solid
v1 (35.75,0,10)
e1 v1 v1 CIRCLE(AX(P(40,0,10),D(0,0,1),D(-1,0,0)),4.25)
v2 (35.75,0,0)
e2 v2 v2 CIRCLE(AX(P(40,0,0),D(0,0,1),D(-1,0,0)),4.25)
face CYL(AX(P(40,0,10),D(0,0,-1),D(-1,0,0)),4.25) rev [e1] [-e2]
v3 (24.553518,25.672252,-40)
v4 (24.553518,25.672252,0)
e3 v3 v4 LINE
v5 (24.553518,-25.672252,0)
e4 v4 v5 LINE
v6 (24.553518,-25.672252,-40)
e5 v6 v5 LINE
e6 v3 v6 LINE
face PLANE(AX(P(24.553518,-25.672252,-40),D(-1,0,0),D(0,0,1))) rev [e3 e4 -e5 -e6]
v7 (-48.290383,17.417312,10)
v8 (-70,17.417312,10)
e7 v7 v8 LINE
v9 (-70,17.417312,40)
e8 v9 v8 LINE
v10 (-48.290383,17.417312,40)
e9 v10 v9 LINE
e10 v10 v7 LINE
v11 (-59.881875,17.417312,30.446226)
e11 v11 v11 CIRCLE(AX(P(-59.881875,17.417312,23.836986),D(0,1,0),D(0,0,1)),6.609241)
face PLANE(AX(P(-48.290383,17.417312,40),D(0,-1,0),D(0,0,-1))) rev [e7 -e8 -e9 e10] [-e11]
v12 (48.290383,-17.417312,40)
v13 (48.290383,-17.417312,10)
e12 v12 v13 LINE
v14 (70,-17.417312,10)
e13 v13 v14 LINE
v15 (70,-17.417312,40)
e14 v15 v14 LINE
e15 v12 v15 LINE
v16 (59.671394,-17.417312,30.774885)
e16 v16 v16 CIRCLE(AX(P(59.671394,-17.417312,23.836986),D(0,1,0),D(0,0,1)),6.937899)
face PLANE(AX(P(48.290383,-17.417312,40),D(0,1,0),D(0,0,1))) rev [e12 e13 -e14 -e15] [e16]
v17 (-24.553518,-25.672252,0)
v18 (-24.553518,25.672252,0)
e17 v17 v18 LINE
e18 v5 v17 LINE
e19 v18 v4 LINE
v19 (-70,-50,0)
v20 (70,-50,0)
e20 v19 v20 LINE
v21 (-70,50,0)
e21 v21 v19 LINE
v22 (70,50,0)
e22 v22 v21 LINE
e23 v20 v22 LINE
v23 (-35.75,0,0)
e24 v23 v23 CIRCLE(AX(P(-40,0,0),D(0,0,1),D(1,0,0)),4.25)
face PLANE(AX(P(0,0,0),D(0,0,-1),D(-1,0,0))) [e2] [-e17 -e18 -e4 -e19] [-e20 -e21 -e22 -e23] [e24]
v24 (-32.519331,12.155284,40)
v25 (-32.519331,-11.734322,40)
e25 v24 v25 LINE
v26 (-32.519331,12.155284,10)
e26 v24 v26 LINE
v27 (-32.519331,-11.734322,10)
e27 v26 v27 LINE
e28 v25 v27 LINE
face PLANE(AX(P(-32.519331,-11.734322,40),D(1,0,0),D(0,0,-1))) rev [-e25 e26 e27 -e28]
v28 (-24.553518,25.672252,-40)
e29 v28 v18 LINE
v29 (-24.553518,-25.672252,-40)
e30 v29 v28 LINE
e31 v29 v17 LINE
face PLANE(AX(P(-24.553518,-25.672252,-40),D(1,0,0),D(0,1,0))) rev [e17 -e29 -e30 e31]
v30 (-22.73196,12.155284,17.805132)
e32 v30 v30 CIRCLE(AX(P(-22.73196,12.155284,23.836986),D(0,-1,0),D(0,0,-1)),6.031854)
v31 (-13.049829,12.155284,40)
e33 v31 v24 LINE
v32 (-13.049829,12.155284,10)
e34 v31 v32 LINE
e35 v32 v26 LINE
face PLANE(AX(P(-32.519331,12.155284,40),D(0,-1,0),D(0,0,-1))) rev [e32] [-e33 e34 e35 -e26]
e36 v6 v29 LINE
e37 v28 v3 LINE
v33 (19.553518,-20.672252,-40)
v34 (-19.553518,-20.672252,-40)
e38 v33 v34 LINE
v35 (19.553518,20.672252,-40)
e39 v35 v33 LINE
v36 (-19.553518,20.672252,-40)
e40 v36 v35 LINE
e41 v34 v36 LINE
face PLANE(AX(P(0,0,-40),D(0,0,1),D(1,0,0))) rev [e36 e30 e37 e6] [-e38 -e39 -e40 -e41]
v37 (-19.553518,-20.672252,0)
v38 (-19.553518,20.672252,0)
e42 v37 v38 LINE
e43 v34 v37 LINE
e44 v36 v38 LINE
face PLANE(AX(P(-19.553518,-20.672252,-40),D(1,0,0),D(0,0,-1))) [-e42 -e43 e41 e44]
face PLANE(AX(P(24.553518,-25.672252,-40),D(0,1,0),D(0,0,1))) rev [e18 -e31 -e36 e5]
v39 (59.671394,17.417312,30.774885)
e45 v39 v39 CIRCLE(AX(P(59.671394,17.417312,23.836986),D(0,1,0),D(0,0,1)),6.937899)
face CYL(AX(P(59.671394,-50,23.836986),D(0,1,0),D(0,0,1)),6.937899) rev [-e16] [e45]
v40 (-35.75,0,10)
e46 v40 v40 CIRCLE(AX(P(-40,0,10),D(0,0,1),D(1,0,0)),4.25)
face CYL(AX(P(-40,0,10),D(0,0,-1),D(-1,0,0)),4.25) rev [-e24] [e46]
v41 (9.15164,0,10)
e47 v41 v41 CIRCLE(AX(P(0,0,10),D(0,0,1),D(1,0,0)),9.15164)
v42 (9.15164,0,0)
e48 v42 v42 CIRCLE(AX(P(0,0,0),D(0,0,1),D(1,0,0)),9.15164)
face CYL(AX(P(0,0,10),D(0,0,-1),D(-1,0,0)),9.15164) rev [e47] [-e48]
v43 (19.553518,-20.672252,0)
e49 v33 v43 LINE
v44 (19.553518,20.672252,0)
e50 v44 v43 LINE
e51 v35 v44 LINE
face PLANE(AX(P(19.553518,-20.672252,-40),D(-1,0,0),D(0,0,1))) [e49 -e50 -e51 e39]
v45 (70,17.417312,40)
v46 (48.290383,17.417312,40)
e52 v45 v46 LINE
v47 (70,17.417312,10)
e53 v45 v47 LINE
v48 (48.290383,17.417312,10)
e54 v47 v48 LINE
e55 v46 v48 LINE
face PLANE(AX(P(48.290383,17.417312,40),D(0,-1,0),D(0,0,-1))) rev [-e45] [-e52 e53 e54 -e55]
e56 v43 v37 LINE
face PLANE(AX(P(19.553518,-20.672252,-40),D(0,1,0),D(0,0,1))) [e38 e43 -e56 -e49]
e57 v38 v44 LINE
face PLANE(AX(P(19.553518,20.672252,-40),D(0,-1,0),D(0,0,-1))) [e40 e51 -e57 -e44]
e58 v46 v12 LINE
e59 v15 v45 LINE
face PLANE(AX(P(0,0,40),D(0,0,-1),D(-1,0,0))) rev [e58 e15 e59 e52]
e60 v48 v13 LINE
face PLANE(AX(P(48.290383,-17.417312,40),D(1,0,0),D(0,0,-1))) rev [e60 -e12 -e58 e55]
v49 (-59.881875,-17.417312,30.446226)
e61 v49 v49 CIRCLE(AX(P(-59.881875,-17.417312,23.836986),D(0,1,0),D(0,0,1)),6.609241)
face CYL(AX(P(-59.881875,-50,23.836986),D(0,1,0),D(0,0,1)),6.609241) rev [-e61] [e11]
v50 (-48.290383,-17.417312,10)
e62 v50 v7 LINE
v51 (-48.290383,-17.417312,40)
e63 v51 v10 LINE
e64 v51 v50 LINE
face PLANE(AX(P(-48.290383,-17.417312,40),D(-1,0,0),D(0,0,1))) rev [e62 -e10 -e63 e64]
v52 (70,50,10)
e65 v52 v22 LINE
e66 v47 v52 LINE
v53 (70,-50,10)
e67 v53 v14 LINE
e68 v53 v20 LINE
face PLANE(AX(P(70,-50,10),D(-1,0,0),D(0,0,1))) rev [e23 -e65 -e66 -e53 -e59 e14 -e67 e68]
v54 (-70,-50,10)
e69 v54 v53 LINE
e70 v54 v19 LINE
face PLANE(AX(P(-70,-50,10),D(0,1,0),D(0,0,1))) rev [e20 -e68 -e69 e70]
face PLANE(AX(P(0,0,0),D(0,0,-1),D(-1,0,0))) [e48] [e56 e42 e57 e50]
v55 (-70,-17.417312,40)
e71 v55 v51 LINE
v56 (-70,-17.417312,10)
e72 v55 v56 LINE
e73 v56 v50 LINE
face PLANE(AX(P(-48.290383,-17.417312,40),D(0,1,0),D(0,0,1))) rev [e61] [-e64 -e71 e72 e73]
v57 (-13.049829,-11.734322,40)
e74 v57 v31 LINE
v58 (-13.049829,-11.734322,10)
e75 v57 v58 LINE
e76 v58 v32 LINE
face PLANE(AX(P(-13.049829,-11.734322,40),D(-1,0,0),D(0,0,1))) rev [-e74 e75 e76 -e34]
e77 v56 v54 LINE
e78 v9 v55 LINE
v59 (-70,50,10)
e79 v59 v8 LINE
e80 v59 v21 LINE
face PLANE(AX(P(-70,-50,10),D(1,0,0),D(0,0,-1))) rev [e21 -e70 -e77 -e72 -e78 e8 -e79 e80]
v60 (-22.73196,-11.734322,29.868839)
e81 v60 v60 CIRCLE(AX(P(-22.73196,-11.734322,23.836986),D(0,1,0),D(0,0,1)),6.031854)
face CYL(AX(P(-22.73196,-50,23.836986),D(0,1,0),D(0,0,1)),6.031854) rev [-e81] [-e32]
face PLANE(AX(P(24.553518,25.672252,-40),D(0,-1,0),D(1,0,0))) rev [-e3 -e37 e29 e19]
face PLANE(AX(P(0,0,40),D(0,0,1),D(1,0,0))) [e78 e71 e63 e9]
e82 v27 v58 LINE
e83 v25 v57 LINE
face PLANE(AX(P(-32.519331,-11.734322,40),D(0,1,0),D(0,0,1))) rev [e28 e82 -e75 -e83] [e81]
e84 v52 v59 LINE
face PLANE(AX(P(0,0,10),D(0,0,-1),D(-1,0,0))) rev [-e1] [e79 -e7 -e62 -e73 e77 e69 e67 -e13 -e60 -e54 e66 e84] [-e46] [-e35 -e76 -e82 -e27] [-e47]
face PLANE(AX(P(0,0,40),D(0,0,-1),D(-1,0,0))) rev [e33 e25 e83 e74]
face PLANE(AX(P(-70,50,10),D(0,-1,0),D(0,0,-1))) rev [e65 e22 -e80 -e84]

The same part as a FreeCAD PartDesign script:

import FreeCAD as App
import Part
import Sketcher
Q = App.Units.Quantity


def add_polygon(sketch, points):
    """Adds a closed chain of lines whose ends are joined by coincident constraints."""
    first, n = sketch.GeometryCount, len(points)
    for a, b in zip(points, points[1:] + points[:1]):
        sketch.addGeometry(Part.LineSegment(App.Vector(*a, 0), App.Vector(*b, 0)), False)
    for i in range(n):
        sketch.addConstraint(Sketcher.Constraint("Coincident", first + i, 2, first + (i + 1) % n, 1))

doc = App.newDocument("Part")
body = doc.addObject("PartDesign::Body", "Body")

# Sketch on XY plane
sketch1 = doc.addObject("Sketcher::SketchObject", "Sketch")
body.addObject(sketch1)
sketch1.AttachmentSupport = (doc.XY_Plane, [""])
sketch1.MapMode = "FlatFace"
add_polygon(sketch1, [(-70, 50), (-70, -50), (70, -50), (70, 50)])  # lines 0-3
sketch1.addGeometry(Part.Circle(App.Vector(-40, 0, 0), App.Vector(0, 0, 1), 4.25), False)  # 4
sketch1.addGeometry(Part.Circle(App.Vector(0, 0, 0), App.Vector(0, 0, 1), 9.15164), False)  # 5
sketch1.addGeometry(Part.Circle(App.Vector(40, 0, 0), App.Vector(0, 0, 1), 4.25), False)  # 6
sketch1.addConstraint(Sketcher.Constraint("Vertical", 0))
sketch1.addConstraint(Sketcher.Constraint("Horizontal", 1))
sketch1.addConstraint(Sketcher.Constraint("Vertical", 2))
sketch1.addConstraint(Sketcher.Constraint("Horizontal", 3))
sketch1.addConstraint(Sketcher.Constraint("Coincident", 5, 3, -1, 1))
sketch1.addConstraint(Sketcher.Constraint("Equal", 4, 6))
sketch1.addConstraint(Sketcher.Constraint("Symmetric", 4, 3, 6, 3, -1, 1))
sketch1.addConstraint(Sketcher.Constraint("Symmetric", 0, 2, 2, 2, -1, 1))
sketch1.addConstraint(Sketcher.Constraint("PointOnObject", 4, 3, -1))
sketch1.addConstraint(Sketcher.Constraint("Diameter", 4, Q("8.5 mm")))
sketch1.addConstraint(Sketcher.Constraint("DistanceX", 1, 1, 1, 2, Q("140 mm")))
sketch1.addConstraint(Sketcher.Constraint("DistanceY", 0, 2, 0, 1, Q("100 mm")))
sketch1.addConstraint(Sketcher.Constraint("DistanceX", 4, 3, -1, 1, Q("40 mm")))
sketch1.addConstraint(Sketcher.Constraint("Diameter", 5, Q("18.303279 mm")))
pad1 = doc.addObject("PartDesign::Pad", "Pad")
body.addObject(pad1)
pad1.Profile = sketch1
pad1.Length = 10

# Sketch on XY plane
sketch2 = doc.addObject("Sketcher::SketchObject", "Sketch001")
body.addObject(sketch2)
sketch2.AttachmentSupport = (doc.XY_Plane, [""])
sketch2.MapMode = "FlatFace"
add_polygon(sketch2, [(24.553518, 25.672252), (24.553518, -25.672252), (-24.553518, -25.672252), (-24.553518, 25.672252)])  # lines 0-3
add_polygon(sketch2, [(-19.553518, -20.672252), (19.553518, -20.672252), (19.553518, 20.672252), (-19.553518, 20.672252)])  # lines 4-7
sketch2.addConstraint(Sketcher.Constraint("Vertical", 0))
sketch2.addConstraint(Sketcher.Constraint("Horizontal", 1))
sketch2.addConstraint(Sketcher.Constraint("Vertical", 2))
sketch2.addConstraint(Sketcher.Constraint("Horizontal", 3))
sketch2.addConstraint(Sketcher.Constraint("Horizontal", 4))
sketch2.addConstraint(Sketcher.Constraint("Vertical", 5))
sketch2.addConstraint(Sketcher.Constraint("Horizontal", 6))
sketch2.addConstraint(Sketcher.Constraint("Vertical", 7))
sketch2.addConstraint(Sketcher.Constraint("Symmetric", 0, 2, 2, 2, -1, 1))
sketch2.addConstraint(Sketcher.Constraint("Symmetric", 4, 2, 6, 2, -1, 1))
sketch2.addConstraint(Sketcher.Constraint("DistanceX", 4, 2, 0, 2, Q("5 mm")))
sketch2.addConstraint(Sketcher.Constraint("DistanceY", 0, 2, 4, 2, Q("5 mm")))
sketch2.addConstraint(Sketcher.Constraint("DistanceX", 1, 2, 1, 1, Q("49.107036 mm")))
sketch2.addConstraint(Sketcher.Constraint("DistanceY", 0, 2, 0, 1, Q("51.344503 mm")))
pad2 = doc.addObject("PartDesign::Pad", "Pad001")
body.addObject(pad2)
pad2.Profile = sketch2
pad2.Length = 40
pad2.Reversed = True

# Sketch on XY plane
sketch3 = doc.addObject("Sketcher::SketchObject", "Sketch002")
body.addObject(sketch3)
sketch3.AttachmentSupport = (doc.XY_Plane, [""])
sketch3.MapMode = "FlatFace"
sketch3.AttachmentOffset = App.Placement(App.Vector(0, 0, 10), App.Rotation())
add_polygon(sketch3, [(-70, 17.417312), (-70, -17.417312), (-48.290383, -17.417312), (-48.290383, 17.417312)])  # lines 0-3
add_polygon(sketch3, [(48.290383, 17.417312), (48.290383, -17.417312), (70, -17.417312), (70, 17.417312)])  # lines 4-7
add_polygon(sketch3, [(-32.519331, 12.155284), (-32.519331, -11.734322), (-13.049829, -11.734322), (-13.049829, 12.155284)])  # lines 8-11
sketch3.addConstraint(Sketcher.Constraint("Vertical", 0))
sketch3.addConstraint(Sketcher.Constraint("Horizontal", 1))
sketch3.addConstraint(Sketcher.Constraint("Vertical", 2))
sketch3.addConstraint(Sketcher.Constraint("Horizontal", 3))
sketch3.addConstraint(Sketcher.Constraint("Vertical", 4))
sketch3.addConstraint(Sketcher.Constraint("Horizontal", 5))
sketch3.addConstraint(Sketcher.Constraint("Vertical", 6))
sketch3.addConstraint(Sketcher.Constraint("Horizontal", 7))
sketch3.addConstraint(Sketcher.Constraint("Vertical", 8))
sketch3.addConstraint(Sketcher.Constraint("Horizontal", 9))
sketch3.addConstraint(Sketcher.Constraint("Vertical", 10))
sketch3.addConstraint(Sketcher.Constraint("Horizontal", 11))
sketch3.addConstraint(Sketcher.Constraint("Symmetric", 2, 2, 4, 2, -1, 1))
sketch3.addConstraint(Sketcher.Constraint("Symmetric", 0, 2, 6, 2, -1, 1))
sketch3.addConstraint(Sketcher.Constraint("Horizontal", 1, 2, 4, 2))
sketch3.addConstraint(Sketcher.Constraint("DistanceX", 0, 2, -1, 1, Q("70 mm")))
sketch3.addConstraint(Sketcher.Constraint("DistanceX", 1, 1, 1, 2, Q("21.709617 mm")))
sketch3.addConstraint(Sketcher.Constraint("DistanceX", 9, 1, 9, 2, Q("19.469503 mm")))
sketch3.addConstraint(Sketcher.Constraint("DistanceY", 0, 2, 0, 1, Q("34.834623 mm")))
sketch3.addConstraint(Sketcher.Constraint("DistanceY", 8, 2, 8, 1, Q("23.889606 mm")))
sketch3.addConstraint(Sketcher.Constraint("DistanceX", 8, 2, -1, 1, Q("32.519331 mm")))
sketch3.addConstraint(Sketcher.Constraint("DistanceY", 8, 2, -1, 1, Q("11.734322 mm")))
pad3 = doc.addObject("PartDesign::Pad", "Pad002")
body.addObject(pad3)
pad3.Profile = sketch3
pad3.Length = 30

# Sketch on XZ plane
sketch4 = doc.addObject("Sketcher::SketchObject", "Sketch003")
body.addObject(sketch4)
sketch4.AttachmentSupport = (doc.XZ_Plane, [""])
sketch4.MapMode = "FlatFace"
sketch4.AttachmentOffset = App.Placement(App.Vector(0, 0, -17.417312), App.Rotation())
sketch4.addGeometry(Part.Circle(App.Vector(-59.881875, 23.836986, 0), App.Vector(0, 0, 1), 6.609241), False)
sketch4.addGeometry(Part.Circle(App.Vector(-22.73196, 23.836986, 0), App.Vector(0, 0, 1), 6.031854), False)
sketch4.addGeometry(Part.Circle(App.Vector(59.671394, 23.836986, 0), App.Vector(0, 0, 1), 6.937899), False)
sketch4.addConstraint(Sketcher.Constraint("Horizontal", 0, 3, 1, 3))
sketch4.addConstraint(Sketcher.Constraint("Horizontal", 1, 3, 2, 3))
sketch4.addConstraint(Sketcher.Constraint("Diameter", 2, Q("13.875798 mm")))
sketch4.addConstraint(Sketcher.Constraint("Diameter", 0, Q("13.218482 mm")))
sketch4.addConstraint(Sketcher.Constraint("Diameter", 1, Q("12.063708 mm")))
sketch4.addConstraint(Sketcher.Constraint("DistanceX", 1, 3, -1, 1, Q("22.73196 mm")))
sketch4.addConstraint(Sketcher.Constraint("DistanceX", 0, 3, 2, 3, Q("119.55327 mm")))
sketch4.addConstraint(Sketcher.Constraint("DistanceX", 0, 3, -1, 1, Q("59.881875 mm")))
sketch4.addConstraint(Sketcher.Constraint("DistanceY", -1, 1, 0, 3, Q("23.836986 mm")))
pocket1 = doc.addObject("PartDesign::Pocket", "Pocket")
body.addObject(pocket1)
pocket1.Profile = sketch4
pocket1.Type = "ThroughAll"
pocket1.Reversed = True

doc.recompute()
